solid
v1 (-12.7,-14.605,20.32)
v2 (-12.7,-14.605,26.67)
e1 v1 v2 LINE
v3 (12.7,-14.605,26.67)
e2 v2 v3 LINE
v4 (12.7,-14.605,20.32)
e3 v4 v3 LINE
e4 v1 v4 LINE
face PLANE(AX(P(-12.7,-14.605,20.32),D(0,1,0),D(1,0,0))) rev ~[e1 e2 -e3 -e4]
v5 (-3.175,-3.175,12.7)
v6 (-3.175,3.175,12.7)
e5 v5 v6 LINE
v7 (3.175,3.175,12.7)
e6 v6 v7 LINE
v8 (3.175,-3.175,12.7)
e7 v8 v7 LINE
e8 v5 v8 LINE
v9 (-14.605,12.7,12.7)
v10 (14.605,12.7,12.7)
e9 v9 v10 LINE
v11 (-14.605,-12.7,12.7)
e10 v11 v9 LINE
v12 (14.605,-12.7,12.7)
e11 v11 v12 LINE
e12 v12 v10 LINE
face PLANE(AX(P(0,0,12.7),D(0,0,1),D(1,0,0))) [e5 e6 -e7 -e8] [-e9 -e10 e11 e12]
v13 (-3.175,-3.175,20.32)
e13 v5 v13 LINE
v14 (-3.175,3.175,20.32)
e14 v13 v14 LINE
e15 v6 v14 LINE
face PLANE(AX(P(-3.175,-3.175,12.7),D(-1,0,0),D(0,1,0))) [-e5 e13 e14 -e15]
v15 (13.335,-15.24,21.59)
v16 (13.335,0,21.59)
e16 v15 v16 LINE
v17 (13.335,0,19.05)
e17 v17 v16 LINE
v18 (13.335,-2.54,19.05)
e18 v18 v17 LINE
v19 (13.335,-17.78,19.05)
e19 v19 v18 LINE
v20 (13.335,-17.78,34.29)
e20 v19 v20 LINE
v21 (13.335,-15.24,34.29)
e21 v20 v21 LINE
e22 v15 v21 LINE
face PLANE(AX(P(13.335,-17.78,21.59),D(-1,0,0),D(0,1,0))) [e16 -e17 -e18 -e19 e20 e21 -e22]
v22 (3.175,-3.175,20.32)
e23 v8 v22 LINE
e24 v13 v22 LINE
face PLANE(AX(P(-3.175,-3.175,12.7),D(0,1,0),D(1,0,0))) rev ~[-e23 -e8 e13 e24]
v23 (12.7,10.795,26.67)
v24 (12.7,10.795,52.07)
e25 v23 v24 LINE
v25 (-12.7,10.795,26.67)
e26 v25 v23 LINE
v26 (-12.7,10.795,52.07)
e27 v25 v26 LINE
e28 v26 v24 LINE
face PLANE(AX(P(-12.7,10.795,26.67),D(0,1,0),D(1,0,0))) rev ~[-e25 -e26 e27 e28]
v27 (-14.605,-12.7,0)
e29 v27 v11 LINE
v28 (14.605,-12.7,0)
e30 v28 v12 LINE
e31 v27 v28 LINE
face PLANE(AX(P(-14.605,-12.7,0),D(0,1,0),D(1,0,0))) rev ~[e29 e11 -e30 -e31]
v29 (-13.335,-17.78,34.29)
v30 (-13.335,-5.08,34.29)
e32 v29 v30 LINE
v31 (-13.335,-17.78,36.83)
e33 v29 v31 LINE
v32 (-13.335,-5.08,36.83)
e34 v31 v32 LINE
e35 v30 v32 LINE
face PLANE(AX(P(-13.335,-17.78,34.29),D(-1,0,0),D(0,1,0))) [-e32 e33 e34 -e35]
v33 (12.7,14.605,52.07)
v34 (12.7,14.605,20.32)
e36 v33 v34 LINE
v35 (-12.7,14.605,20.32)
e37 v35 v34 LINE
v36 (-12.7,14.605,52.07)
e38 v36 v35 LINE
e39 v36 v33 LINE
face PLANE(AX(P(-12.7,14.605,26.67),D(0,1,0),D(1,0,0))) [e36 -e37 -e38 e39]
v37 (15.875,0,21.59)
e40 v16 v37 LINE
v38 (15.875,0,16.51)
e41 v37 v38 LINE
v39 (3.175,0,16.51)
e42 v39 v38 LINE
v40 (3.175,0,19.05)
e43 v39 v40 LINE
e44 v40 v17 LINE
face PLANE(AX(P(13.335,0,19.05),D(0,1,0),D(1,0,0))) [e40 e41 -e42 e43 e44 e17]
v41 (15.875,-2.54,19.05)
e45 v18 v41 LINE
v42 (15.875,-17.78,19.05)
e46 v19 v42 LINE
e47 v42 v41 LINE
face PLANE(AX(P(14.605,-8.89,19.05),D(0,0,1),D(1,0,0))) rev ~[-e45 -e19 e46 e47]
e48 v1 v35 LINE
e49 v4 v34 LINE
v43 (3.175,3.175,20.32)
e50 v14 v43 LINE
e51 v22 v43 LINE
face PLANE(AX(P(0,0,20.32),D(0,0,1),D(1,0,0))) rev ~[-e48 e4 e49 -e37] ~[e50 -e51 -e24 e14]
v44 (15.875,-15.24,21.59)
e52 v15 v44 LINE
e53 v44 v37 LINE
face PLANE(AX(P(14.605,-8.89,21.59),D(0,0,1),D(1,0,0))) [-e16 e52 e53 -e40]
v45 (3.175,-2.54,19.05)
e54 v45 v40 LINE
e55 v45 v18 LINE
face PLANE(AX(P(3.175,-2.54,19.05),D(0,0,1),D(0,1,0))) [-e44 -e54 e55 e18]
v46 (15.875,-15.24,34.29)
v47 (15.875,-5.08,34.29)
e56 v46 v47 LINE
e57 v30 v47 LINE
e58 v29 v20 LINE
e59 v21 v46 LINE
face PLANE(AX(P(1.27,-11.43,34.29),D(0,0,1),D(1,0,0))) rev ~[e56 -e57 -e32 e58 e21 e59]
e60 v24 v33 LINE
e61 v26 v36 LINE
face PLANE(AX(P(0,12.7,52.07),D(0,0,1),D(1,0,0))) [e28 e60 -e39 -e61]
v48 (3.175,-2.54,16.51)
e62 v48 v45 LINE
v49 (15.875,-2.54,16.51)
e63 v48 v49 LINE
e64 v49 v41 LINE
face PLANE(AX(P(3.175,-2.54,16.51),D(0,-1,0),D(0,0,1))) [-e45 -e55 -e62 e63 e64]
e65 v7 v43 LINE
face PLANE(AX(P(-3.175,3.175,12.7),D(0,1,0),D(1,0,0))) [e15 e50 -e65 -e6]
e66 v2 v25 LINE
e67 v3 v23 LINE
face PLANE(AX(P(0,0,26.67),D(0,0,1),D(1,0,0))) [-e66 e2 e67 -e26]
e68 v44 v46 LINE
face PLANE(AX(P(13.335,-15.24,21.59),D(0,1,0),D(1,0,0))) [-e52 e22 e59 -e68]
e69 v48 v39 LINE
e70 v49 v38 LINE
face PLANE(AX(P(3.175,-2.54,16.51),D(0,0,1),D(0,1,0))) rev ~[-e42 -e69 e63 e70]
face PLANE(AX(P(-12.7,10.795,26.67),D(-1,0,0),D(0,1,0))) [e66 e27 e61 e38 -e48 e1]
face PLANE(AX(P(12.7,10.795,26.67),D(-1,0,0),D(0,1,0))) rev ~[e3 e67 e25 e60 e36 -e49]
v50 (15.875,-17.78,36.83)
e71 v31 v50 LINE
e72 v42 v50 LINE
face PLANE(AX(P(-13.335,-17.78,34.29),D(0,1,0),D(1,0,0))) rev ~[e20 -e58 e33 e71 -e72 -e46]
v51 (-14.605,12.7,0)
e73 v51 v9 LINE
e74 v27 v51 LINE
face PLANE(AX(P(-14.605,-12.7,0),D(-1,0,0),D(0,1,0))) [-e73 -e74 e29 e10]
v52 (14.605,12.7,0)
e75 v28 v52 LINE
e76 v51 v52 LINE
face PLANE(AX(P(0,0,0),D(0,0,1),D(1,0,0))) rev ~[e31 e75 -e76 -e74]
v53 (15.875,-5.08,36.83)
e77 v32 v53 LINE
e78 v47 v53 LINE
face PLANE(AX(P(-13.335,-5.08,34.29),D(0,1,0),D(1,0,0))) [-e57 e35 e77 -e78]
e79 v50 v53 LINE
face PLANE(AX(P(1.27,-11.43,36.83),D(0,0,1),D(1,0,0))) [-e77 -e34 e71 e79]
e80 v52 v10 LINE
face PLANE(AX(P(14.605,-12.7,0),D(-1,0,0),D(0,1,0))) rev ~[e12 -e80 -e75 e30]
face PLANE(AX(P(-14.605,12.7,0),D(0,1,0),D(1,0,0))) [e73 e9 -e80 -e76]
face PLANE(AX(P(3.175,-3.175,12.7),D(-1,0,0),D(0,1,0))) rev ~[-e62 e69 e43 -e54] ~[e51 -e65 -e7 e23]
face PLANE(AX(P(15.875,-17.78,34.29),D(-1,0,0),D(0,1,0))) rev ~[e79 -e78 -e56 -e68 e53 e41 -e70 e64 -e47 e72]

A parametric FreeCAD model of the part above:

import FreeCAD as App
import Part
import Sketcher
from FreeCAD import Vector
Q = App.Units.Quantity

doc = App.newDocument("Part")
body = doc.addObject("PartDesign::Body", "Body")

# Sketch on XY plane
sketch1 = body.newObject("Sketcher::SketchObject", "Sketch")
sketch1.AttachmentSupport = (doc.getObject("XY_Plane"), [""])
sketch1.MapMode = "FlatFace"
sketch1.addGeometry([
    Part.LineSegment(Vector(-15, 13, 0), Vector(-15, -13, 0)),
    Part.LineSegment(Vector(-15, -13, 0), Vector(15, -13, 0)),
    Part.LineSegment(Vector(15, -13, 0), Vector(15, 13, 0)),
    Part.LineSegment(Vector(15, 13, 0), Vector(-15, 13, 0)),
], False)
sketch1.addConstraint([
    Sketcher.Constraint("Coincident", 0, 2, 1, 1),
    Sketcher.Constraint("Coincident", 1, 2, 2, 1),
    Sketcher.Constraint("Coincident", 2, 2, 3, 1),
    Sketcher.Constraint("Coincident", 3, 2, 0, 1),
    Sketcher.Constraint("Vertical", 0),
    Sketcher.Constraint("Horizontal", 1),
    Sketcher.Constraint("Vertical", 2),
    Sketcher.Constraint("Horizontal", 3),
    Sketcher.Constraint("Symmetric", 0, 2, 2, 2, -1, 1),
    Sketcher.Constraint("DistanceY", 0, 2, 0, 1, Q("1 in")),
    Sketcher.Constraint("DistanceX", 1, 1, 1, 2, Q("1.15 in")),
])
pad1 = body.newObject("PartDesign::Pad", "Pad")
pad1.Profile = sketch1
pad1.Length = Q("0.5 in")

# Sketch on XY plane
sketch2 = body.newObject("Sketcher::SketchObject", "Sketch001")
sketch2.AttachmentSupport = (doc.getObject("XY_Plane"), [""])
sketch2.MapMode = "FlatFace"
sketch2.AttachmentOffset = App.Placement(Vector(0, 0, 0.5 * 25.4), App.Rotation())
sketch2.addGeometry([
    Part.LineSegment(Vector(-3, 3, 0), Vector(-3, -3, 0)),
    Part.LineSegment(Vector(-3, -3, 0), Vector(3, -3, 0)),
    Part.LineSegment(Vector(3, -3, 0), Vector(3, 3, 0)),
    Part.LineSegment(Vector(3, 3, 0), Vector(-3, 3, 0)),
], False)
sketch2.addConstraint([
    Sketcher.Constraint("Coincident", 0, 2, 1, 1),
    Sketcher.Constraint("Coincident", 1, 2, 2, 1),
    Sketcher.Constraint("Coincident", 2, 2, 3, 1),
    Sketcher.Constraint("Coincident", 3, 2, 0, 1),
    Sketcher.Constraint("Vertical", 0),
    Sketcher.Constraint("Horizontal", 1),
    Sketcher.Constraint("Vertical", 2),
    Sketcher.Constraint("Horizontal", 3),
    Sketcher.Constraint("Symmetric", 0, 2, 2, 2, -1, 1),
    Sketcher.Constraint("Equal", 3, 0),
    Sketcher.Constraint("DistanceX", 1, 1, 1, 2, Q("0.25 in")),
])
pad2 = body.newObject("PartDesign::Pad", "Pad001")
pad2.Profile = sketch2
pad2.Length = Q("0.3 in")

# Sketch on XY plane
sketch3 = body.newObject("Sketcher::SketchObject", "Sketch002")
sketch3.AttachmentSupport = (doc.getObject("XY_Plane"), [""])
sketch3.MapMode = "FlatFace"
sketch3.AttachmentOffset = App.Placement(Vector(0, 0, 0.8 * 25.4), App.Rotation())
sketch3.addGeometry([
    Part.LineSegment(Vector(-13, 15, 0), Vector(-13, -15, 0)),
    Part.LineSegment(Vector(-13, -15, 0), Vector(13, -15, 0)),
    Part.LineSegment(Vector(13, -15, 0), Vector(13, 15, 0)),
    Part.LineSegment(Vector(13, 15, 0), Vector(-13, 15, 0)),
], False)
sketch3.addConstraint([
    Sketcher.Constraint("Coincident", 0, 2, 1, 1),
    Sketcher.Constraint("Coincident", 1, 2, 2, 1),
    Sketcher.Constraint("Coincident", 2, 2, 3, 1),
    Sketcher.Constraint("Coincident", 3, 2, 0, 1),
    Sketcher.Constraint("Vertical", 0),
    Sketcher.Constraint("Horizontal", 1),
    Sketcher.Constraint("Vertical", 2),
    Sketcher.Constraint("Horizontal", 3),
    Sketcher.Constraint("Symmetric", 0, 2, 2, 2, -1, 1),
    Sketcher.Constraint("DistanceX", 1, 1, 1, 2, Q("1 in")),
    Sketcher.Constraint("DistanceY", 0, 2, 0, 1, Q("1.15 in")),
])
pad3 = body.newObject("PartDesign::Pad", "Pad002")
pad3.Profile = sketch3
pad3.Length = Q("0.25 in")

# Sketch on XY plane
sketch4 = body.newObject("Sketcher::SketchObject", "Sketch003")
sketch4.AttachmentSupport = (doc.getObject("XY_Plane"), [""])
sketch4.MapMode = "FlatFace"
sketch4.AttachmentOffset = App.Placement(Vector(0, 0, 1.05 * 25.4), App.Rotation())
sketch4.addGeometry([
    Part.LineSegment(Vector(-12.7, 14.6, 0), Vector(-12.7, 10.8, 0)),
    Part.LineSegment(Vector(-12.7, 10.8, 0), Vector(12.7, 10.8, 0)),
    Part.LineSegment(Vector(12.7, 10.8, 0), Vector(12.7, 14.6, 0)),
    Part.LineSegment(Vector(12.7, 14.6, 0), Vector(-12.7, 14.6, 0)),
], False)
sketch4.addConstraint([
    Sketcher.Constraint("Coincident", 0, 2, 1, 1),
    Sketcher.Constraint("Coincident", 1, 2, 2, 1),
    Sketcher.Constraint("Coincident", 2, 2, 3, 1),
    Sketcher.Constraint("Coincident", 3, 2, 0, 1),
    Sketcher.Constraint("Vertical", 0),
    Sketcher.Constraint("Horizontal", 1),
    Sketcher.Constraint("Vertical", 2),
    Sketcher.Constraint("Horizontal", 3),
    Sketcher.Constraint("DistanceX", 1, 1, 1, 2, Q("1 in")),
    Sketcher.Constraint("DistanceY", 0, 2, 0, 1, Q("0.15 in")),
    Sketcher.Constraint("DistanceX", 0, 2, -1, 1, Q("0.5 in")),
    Sketcher.Constraint("DistanceY", -1, 1, 0, 2, Q("0.425 in")),
])
pad4 = body.newObject("PartDesign::Pad", "Pad003")
pad4.Profile = sketch4
pad4.Length = Q("1 in")

# Sketch on YZ plane
sketch5 = body.newObject("Sketcher::SketchObject", "Sketch004")
sketch5.AttachmentSupport = (doc.getObject("YZ_Plane"), [""])
sketch5.MapMode = "FlatFace"
sketch5.AttachmentOffset = App.Placement(Vector(0, 0, 0.125 * 25.4), App.Rotation())
sketch5.addGeometry([
    Part.LineSegment(Vector(-2.5, 19.1, 0), Vector(-2.5, 16.5, 0)),
    Part.LineSegment(Vector(-2.5, 16.5, 0), Vector(0, 16.5, 0)),
    Part.LineSegment(Vector(0, 16.5, 0), Vector(0, 19.1, 0)),
    Part.LineSegment(Vector(0, 19.1, 0), Vector(-2.5, 19.1, 0)),
], False)
sketch5.addConstraint([
    Sketcher.Constraint("Coincident", 0, 2, 1, 1),
    Sketcher.Constraint("Coincident", 1, 2, 2, 1),
    Sketcher.Constraint("Coincident", 2, 2, 3, 1),
    Sketcher.Constraint("Coincident", 3, 2, 0, 1),
    Sketcher.Constraint("Vertical", 0),
    Sketcher.Constraint("Horizontal", 1),
    Sketcher.Constraint("Vertical", 2),
    Sketcher.Constraint("Horizontal", 3),
    Sketcher.Constraint("PointOnObject", 1, 2, -2),
    Sketcher.Constraint("Equal", 3, 0),
    Sketcher.Constraint("DistanceX", 1, 1, 1, 2, Q("0.1 in")),
    Sketcher.Constraint("DistanceY", -1, 1, 0, 2, Q("0.65 in")),
])
pad5 = body.newObject("PartDesign::Pad", "Pad004")
pad5.Profile = sketch5
pad5.Length = Q("0.5 in")

# Sketch on XY plane
sketch6 = body.newObject("Sketcher::SketchObject", "Sketch005")
sketch6.AttachmentSupport = (doc.getObject("XY_Plane"), [""])
sketch6.MapMode = "FlatFace"
sketch6.AttachmentOffset = App.Placement(Vector(0, 0, 0.75 * 25.4), App.Rotation())
sketch6.addGeometry([
    Part.LineSegment(Vector(13.3, 0, 0), Vector(13.3, -17.8, 0)),
    Part.LineSegment(Vector(13.3, -17.8, 0), Vector(15.9, -17.8, 0)),
    Part.LineSegment(Vector(15.9, -17.8, 0), Vector(15.9, 0, 0)),
    Part.LineSegment(Vector(15.9, 0, 0), Vector(13.3, 0, 0)),
], False)
sketch6.addConstraint([
    Sketcher.Constraint("Coincident", 0, 2, 1, 1),
    Sketcher.Constraint("Coincident", 1, 2, 2, 1),
    Sketcher.Constraint("Coincident", 2, 2, 3, 1),
    Sketcher.Constraint("Coincident", 3, 2, 0, 1),
    Sketcher.Constraint("Vertical", 0),
    Sketcher.Constraint("Horizontal", 1),
    Sketcher.Constraint("Vertical", 2),
    Sketcher.Constraint("Horizontal", 3),
    Sketcher.Constraint("PointOnObject", 2, 2, -1),
    Sketcher.Constraint("DistanceX", 1, 1, 1, 2, Q("0.1 in")),
    Sketcher.Constraint("DistanceY", 0, 2, 0, 1, Q("0.7 in")),
    Sketcher.Constraint("DistanceX", -1, 1, 0, 2, Q("0.525 in")),
])
pad6 = body.newObject("PartDesign::Pad", "Pad005")
pad6.Profile = sketch6
pad6.Length = Q("0.1 in")

# Sketch on XY plane
sketch7 = body.newObject("Sketcher::SketchObject", "Sketch006")
sketch7.AttachmentSupport = (doc.getObject("XY_Plane"), [""])
sketch7.MapMode = "FlatFace"
sketch7.AttachmentOffset = App.Placement(Vector(0, 0, 0.85 * 25.4), App.Rotation())
sketch7.addGeometry([
    Part.LineSegment(Vector(13.3, -15.2, 0), Vector(13.3, -17.8, 0)),
    Part.LineSegment(Vector(13.3, -17.8, 0), Vector(15.9, -17.8, 0)),
    Part.LineSegment(Vector(15.9, -17.8, 0), Vector(15.9, -15.2, 0)),
    Part.LineSegment(Vector(15.9, -15.2, 0), Vector(13.3, -15.2, 0)),
], False)
sketch7.addConstraint([
    Sketcher.Constraint("Coincident", 0, 2, 1, 1),
    Sketcher.Constraint("Coincident", 1, 2, 2, 1),
    Sketcher.Constraint("Coincident", 2, 2, 3, 1),
    Sketcher.Constraint("Coincident", 3, 2, 0, 1),
    Sketcher.Constraint("Vertical", 0),
    Sketcher.Constraint("Horizontal", 1),
    Sketcher.Constraint("Vertical", 2),
    Sketcher.Constraint("Horizontal", 3),
    Sketcher.Constraint("Equal", 3, 0),
    Sketcher.Constraint("DistanceX", 1, 1, 1, 2, Q("0.1 in")),
    Sketcher.Constraint("DistanceY", 0, 2, -1, 1, Q("0.7 in")),
    Sketcher.Constraint("DistanceX", -1, 1, 0, 2, Q("0.525 in")),
])
pad7 = body.newObject("PartDesign::Pad", "Pad006")
pad7.Profile = sketch7
pad7.Length = Q("0.5 in")

# Sketch on XY plane
sketch8 = body.newObject("Sketcher::SketchObject", "Sketch007")
sketch8.AttachmentSupport = (doc.getObject("XY_Plane"), [""])
sketch8.MapMode = "FlatFace"
sketch8.AttachmentOffset = App.Placement(Vector(0, 0, 1.35 * 25.4), App.Rotation())
sketch8.addGeometry([
    Part.LineSegment(Vector(-13, -5, 0), Vector(-13, -18, 0)),
    Part.LineSegment(Vector(-13, -18, 0), Vector(16, -18, 0)),
    Part.LineSegment(Vector(16, -18, 0), Vector(16, -5, 0)),
    Part.LineSegment(Vector(16, -5, 0), Vector(-13, -5, 0)),
], False)
sketch8.addConstraint([
    Sketcher.Constraint("Coincident", 0, 2, 1, 1),
    Sketcher.Constraint("Coincident", 1, 2, 2, 1),
    Sketcher.Constraint("Coincident", 2, 2, 3, 1),
    Sketcher.Constraint("Coincident", 3, 2, 0, 1),
    Sketcher.Constraint("Vertical", 0),
    Sketcher.Constraint("Horizontal", 1),
    Sketcher.Constraint("Vertical", 2),
    Sketcher.Constraint("Horizontal", 3),
    Sketcher.Constraint("DistanceY", 0, 2, 0, 1, Q("0.5 in")),
    Sketcher.Constraint("DistanceX", 1, 1, 1, 2, Q("1.15 in")),
    Sketcher.Constraint("DistanceY", 0, 2, -1, 1, Q("0.7 in")),
    Sketcher.Constraint("DistanceX", 0, 2, -1, 1, Q("0.525 in")),
])
pad8 = body.newObject("PartDesign::Pad", "Pad007")
pad8.Profile = sketch8
pad8.Length = Q("0.1 in")

doc.recompute()
